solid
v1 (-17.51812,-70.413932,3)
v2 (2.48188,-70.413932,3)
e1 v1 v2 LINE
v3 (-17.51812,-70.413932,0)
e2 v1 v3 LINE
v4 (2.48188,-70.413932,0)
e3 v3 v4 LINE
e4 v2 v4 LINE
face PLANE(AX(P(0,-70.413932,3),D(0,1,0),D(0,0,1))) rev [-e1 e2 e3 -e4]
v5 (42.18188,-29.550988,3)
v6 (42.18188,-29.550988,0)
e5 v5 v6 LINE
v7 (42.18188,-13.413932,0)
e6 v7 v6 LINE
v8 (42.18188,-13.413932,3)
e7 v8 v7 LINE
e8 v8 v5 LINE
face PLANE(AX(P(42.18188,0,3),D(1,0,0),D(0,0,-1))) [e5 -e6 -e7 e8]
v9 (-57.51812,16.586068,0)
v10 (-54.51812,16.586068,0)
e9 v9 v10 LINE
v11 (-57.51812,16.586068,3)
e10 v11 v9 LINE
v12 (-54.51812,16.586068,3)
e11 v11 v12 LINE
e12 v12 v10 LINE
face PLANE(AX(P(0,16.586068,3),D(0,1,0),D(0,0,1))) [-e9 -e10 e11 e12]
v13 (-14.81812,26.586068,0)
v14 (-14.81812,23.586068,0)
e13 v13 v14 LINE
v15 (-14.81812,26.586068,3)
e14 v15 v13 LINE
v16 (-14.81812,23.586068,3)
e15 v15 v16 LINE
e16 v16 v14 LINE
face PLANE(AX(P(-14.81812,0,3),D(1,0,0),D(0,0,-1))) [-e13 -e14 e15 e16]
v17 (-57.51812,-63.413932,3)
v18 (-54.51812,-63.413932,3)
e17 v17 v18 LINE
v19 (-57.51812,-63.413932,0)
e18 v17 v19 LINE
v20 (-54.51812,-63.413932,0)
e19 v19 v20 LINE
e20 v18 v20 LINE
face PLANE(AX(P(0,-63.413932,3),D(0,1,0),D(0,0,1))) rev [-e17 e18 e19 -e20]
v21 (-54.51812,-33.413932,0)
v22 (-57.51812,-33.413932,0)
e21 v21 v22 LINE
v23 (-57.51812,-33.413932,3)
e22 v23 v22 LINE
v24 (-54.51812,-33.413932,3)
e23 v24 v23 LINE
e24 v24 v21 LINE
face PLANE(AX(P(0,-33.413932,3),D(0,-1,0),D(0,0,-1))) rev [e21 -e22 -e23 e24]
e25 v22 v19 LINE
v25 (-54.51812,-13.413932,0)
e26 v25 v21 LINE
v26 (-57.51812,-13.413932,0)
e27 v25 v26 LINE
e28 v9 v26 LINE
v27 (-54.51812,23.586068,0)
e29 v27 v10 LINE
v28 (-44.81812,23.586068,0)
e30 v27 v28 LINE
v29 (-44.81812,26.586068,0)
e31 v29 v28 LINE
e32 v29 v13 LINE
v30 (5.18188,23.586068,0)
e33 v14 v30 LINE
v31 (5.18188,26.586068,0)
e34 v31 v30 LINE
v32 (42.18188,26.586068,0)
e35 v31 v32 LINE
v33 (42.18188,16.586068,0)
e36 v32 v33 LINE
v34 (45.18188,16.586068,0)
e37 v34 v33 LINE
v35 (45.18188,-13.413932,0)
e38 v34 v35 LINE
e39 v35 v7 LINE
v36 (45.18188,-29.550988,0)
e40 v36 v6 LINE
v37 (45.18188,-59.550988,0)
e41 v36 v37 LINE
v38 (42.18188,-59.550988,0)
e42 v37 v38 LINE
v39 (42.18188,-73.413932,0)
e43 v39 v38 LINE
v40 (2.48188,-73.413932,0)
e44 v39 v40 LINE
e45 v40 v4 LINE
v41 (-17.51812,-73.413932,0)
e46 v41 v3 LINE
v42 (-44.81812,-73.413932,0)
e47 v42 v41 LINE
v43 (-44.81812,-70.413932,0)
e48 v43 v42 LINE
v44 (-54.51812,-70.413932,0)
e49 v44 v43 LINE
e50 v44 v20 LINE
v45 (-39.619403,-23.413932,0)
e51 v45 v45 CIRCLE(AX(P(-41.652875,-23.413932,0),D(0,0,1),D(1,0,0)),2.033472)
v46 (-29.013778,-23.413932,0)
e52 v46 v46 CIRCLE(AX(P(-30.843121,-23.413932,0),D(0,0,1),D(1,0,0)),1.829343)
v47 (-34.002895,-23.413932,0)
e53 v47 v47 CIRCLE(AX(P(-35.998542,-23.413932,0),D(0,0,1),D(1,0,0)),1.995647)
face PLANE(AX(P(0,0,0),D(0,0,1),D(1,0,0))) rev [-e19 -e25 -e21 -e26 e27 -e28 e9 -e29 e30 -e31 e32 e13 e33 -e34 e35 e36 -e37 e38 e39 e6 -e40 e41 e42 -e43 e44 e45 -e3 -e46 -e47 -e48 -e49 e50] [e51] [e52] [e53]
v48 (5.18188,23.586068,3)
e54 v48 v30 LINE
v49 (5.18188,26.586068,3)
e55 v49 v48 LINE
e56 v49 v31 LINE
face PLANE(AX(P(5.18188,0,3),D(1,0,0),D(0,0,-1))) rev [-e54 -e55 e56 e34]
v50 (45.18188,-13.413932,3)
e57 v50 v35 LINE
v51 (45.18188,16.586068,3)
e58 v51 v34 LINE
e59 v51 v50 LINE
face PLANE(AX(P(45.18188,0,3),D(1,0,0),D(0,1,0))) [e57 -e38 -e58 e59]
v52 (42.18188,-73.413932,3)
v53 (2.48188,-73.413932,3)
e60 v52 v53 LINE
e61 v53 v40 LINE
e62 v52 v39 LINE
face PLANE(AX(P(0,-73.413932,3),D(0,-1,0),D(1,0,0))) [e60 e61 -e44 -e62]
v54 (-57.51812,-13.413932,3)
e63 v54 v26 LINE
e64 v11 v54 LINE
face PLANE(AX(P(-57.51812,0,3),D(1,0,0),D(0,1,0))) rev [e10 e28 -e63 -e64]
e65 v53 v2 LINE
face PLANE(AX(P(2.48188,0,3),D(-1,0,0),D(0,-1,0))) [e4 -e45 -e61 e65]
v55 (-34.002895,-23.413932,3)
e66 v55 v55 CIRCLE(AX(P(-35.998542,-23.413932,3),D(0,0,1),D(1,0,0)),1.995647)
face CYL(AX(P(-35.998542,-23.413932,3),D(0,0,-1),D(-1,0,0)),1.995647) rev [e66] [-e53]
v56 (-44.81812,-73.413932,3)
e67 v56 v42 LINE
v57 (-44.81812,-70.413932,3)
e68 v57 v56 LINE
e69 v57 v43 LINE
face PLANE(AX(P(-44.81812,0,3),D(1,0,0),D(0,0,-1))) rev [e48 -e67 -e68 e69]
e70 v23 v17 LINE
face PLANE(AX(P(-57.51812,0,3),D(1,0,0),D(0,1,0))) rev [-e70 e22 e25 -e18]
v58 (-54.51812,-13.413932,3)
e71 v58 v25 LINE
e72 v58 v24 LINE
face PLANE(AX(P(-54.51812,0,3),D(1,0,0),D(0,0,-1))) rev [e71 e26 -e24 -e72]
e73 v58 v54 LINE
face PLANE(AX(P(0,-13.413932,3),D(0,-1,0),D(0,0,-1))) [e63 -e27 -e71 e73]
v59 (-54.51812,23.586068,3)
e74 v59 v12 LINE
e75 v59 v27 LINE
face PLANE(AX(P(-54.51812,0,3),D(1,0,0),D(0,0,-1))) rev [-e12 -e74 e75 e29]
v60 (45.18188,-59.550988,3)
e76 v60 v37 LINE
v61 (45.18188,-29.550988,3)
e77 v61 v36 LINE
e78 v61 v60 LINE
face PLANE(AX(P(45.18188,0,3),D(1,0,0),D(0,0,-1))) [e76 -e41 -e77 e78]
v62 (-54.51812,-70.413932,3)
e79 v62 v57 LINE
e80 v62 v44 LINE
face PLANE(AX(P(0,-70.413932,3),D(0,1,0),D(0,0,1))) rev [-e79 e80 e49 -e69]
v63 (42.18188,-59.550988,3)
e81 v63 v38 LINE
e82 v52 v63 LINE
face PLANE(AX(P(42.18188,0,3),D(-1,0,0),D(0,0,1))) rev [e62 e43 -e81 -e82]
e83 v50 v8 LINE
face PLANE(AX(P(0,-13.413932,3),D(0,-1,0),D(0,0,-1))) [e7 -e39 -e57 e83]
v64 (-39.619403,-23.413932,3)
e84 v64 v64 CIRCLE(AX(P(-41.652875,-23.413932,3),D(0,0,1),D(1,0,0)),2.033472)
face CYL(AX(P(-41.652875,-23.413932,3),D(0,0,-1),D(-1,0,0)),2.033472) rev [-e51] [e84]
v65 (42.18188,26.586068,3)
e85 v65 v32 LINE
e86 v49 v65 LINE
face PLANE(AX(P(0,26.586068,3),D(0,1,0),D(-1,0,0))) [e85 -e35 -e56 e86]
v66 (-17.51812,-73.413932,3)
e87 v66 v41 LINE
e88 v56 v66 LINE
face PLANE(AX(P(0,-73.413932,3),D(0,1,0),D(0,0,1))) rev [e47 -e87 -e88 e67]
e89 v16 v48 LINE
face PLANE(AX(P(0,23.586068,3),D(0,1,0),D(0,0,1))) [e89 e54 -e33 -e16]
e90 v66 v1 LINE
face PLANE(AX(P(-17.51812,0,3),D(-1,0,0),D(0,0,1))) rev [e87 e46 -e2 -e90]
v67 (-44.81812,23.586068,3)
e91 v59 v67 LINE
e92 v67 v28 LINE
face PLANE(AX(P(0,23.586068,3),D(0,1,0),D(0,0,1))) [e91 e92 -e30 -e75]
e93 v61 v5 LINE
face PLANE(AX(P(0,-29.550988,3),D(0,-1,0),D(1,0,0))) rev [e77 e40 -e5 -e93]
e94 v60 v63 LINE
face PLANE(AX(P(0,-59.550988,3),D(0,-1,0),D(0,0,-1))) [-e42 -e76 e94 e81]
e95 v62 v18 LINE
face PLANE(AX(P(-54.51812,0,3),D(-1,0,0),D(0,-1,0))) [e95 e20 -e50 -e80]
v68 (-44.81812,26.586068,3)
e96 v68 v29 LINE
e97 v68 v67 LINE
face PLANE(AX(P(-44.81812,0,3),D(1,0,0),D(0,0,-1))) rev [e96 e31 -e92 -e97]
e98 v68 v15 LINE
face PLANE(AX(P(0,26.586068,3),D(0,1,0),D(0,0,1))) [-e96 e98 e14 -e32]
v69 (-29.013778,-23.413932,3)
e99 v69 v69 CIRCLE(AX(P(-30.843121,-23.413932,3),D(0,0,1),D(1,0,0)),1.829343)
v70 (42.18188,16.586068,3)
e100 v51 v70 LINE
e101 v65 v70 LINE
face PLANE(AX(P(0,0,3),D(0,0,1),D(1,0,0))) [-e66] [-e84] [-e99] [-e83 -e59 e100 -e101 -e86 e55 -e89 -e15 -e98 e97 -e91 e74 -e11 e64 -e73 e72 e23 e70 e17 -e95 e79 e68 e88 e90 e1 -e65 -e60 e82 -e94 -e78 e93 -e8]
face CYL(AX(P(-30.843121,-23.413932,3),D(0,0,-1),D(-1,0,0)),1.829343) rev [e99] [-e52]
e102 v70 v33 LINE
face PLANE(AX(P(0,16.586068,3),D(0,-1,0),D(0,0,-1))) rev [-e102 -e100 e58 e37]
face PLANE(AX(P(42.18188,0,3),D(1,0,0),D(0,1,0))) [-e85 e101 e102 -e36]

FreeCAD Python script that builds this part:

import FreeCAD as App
import Part
import Sketcher
from FreeCAD import Vector
Q = App.Units.Quantity


def add_polygon(sketch, points):
    """Adds a closed chain of lines whose ends are joined by coincident constraints."""
    first, n = sketch.GeometryCount, len(points)
    for a, b in zip(points, points[1:] + points[:1]):
        sketch.addGeometry(Part.LineSegment(App.Vector(*a, 0), App.Vector(*b, 0)), False)
    for i in range(n):
        sketch.addConstraint(Sketcher.Constraint("Coincident", first + i, 2, first + (i + 1) % n, 1))

doc = App.newDocument("Part")
body = doc.addObject("PartDesign::Body", "Body")

# Sketch on XY plane
sketch1 = body.newObject("Sketcher::SketchObject", "Sketch")
sketch1.AttachmentSupport = (doc.getObject("XY_Plane"), [""])
sketch1.MapMode = "FlatFace"
add_polygon(sketch1, [(-54.5, -33.4), (-57.5, -33.4), (-57.5, -63.4), (-54.5, -63.4), (-54.5, -70.4), (-44.8, -70.4), (-44.8, -73.4), (-17.5, -73.4), (-17.5, -70.4), (2.5, -70.4), (2.5, -73.4), (42.2, -73.4), (42.2, -59.6), (45.2, -59.6), (45.2, -29.6), (42.2, -29.6), (42.2, -13.4), (45.2, -13.4), (45.2, 16.6), (42.2, 16.6), (42.2, 26.6), (5.2, 26.6), (5.2, 23.6), (-14.8, 23.6), (-14.8, 26.6), (-44.8, 26.6), (-44.8, 23.6), (-54.5, 23.6), (-54.5, 16.6), (-57.5, 16.6), (-57.5, -13.4), (-54.5, -13.4)])  # lines 0-31
sketch1.addGeometry(Part.Circle(Vector(-41.7, -23.4, 0), Vector(0, 0, 1), 2), False)  # 32
sketch1.addGeometry(Part.Circle(Vector(-36, -23.4, 0), Vector(0, 0, 1), 2), False)  # 33
sketch1.addGeometry(Part.Circle(Vector(-30.8, -23.4, 0), Vector(0, 0, 1), 1.8), False)  # 34
sketch1.addConstraint([
    Sketcher.Constraint("Horizontal", 0),
    Sketcher.Constraint("Vertical", 1),
    Sketcher.Constraint("Horizontal", 2),
    Sketcher.Constraint("Vertical", 3),
    Sketcher.Constraint("Horizontal", 4),
    Sketcher.Constraint("Vertical", 5),
    Sketcher.Constraint("Horizontal", 6),
    Sketcher.Constraint("Vertical", 7),
    Sketcher.Constraint("Horizontal", 8),
    Sketcher.Constraint("Vertical", 9),
    Sketcher.Constraint("Horizontal", 10),
    Sketcher.Constraint("Vertical", 11),
    Sketcher.Constraint("Horizontal", 12),
    Sketcher.Constraint("Vertical", 13),
    Sketcher.Constraint("Horizontal", 14),
    Sketcher.Constraint("Vertical", 15),
    Sketcher.Constraint("Horizontal", 16),
    Sketcher.Constraint("Vertical", 17),
    Sketcher.Constraint("Horizontal", 18),
    Sketcher.Constraint("Vertical", 19),
    Sketcher.Constraint("Horizontal", 20),
    Sketcher.Constraint("Vertical", 21),
    Sketcher.Constraint("Horizontal", 22),
    Sketcher.Constraint("Vertical", 23),
    Sketcher.Constraint("Horizontal", 24),
    Sketcher.Constraint("Vertical", 25),
    Sketcher.Constraint("Horizontal", 26),
    Sketcher.Constraint("Vertical", 27),
    Sketcher.Constraint("Horizontal", 28),
    Sketcher.Constraint("Vertical", 29),
    Sketcher.Constraint("Horizontal", 30),
    Sketcher.Constraint("Vertical", 31),
    Sketcher.Constraint("Horizontal", 32, 3, 33, 3),
    Sketcher.Constraint("Horizontal", 33, 3, 34, 3),
    Sketcher.Constraint("Horizontal", 4, 2, 7, 2),
    Sketcher.Constraint("Horizontal", 6, 2, 9, 2),
    Sketcher.Constraint("Horizontal", 20, 2, 23, 2),
    Sketcher.Constraint("Horizontal", 22, 2, 25, 2),
    Sketcher.Constraint("Horizontal", 18, 2, 27, 2),
    Sketcher.Constraint("Horizontal", 16, 2, 29, 2),
    Sketcher.Constraint("Vertical", 11, 2, 14, 2),
    Sketcher.Constraint("Vertical", 13, 2, 16, 2),
    Sketcher.Constraint("Vertical", 15, 2, 18, 2),
    Sketcher.Constraint("Vertical", 5, 2, 24, 2),
    Sketcher.Constraint("Vertical", 3, 2, 26, 2),
    Sketcher.Constraint("Vertical", 1, 2, 28, 2),
    Sketcher.Constraint("Vertical", 27, 2, 30, 2),
    Sketcher.Constraint("Equal", 2, 12),
    Sketcher.Constraint("Equal", 8, 22),
    Sketcher.Constraint("Equal", 24, 1),
    Sketcher.Constraint("Equal", 30, 5),
    Sketcher.Constraint("Equal", 1, 13),
    Sketcher.Constraint("Equal", 13, 17),
    Sketcher.Constraint("Equal", 9, 21),
    Sketcher.Constraint("Equal", 3, 27),
    Sketcher.Constraint("Equal", 22, 31),
    Sketcher.Constraint("DistanceX", 0, 2, 0, 1, Q("3 mm")),
    Sketcher.Constraint("DistanceX", 8, 1, 8, 2, Q("20 mm")),
    Sketcher.Constraint("DistanceX", 20, 2, 20, 1, Q("37 mm")),
    Sketcher.Constraint("DistanceX", 24, 2, 24, 1, Q("30 mm")),
    Sketcher.Constraint("DistanceY", 3, 2, 3, 1, Q("7 mm")),
    Sketcher.Constraint("DistanceX", 4, 1, 4, 2, Q("9.7 mm")),
    Sketcher.Constraint("DistanceX", 6, 1, 6, 2, Q("27.3 mm")),
    Sketcher.Constraint("DistanceY", 0, 2, 32, 3, Q("10 mm")),
    Sketcher.Constraint("Diameter", 32, Q("4.066945 mm")),
    Sketcher.Constraint("Diameter", 33, Q("3.991294 mm")),
    Sketcher.Constraint("Diameter", 34, Q("3.658686 mm")),
    Sketcher.Constraint("DistanceX", 0, 2, 34, 3, Q("26.674999 mm")),
    Sketcher.Constraint("DistanceY", 11, 1, 11, 2, Q("13.862944 mm")),
    Sketcher.Constraint("DistanceX", 34, 3, -1, 1, Q("30.843121 mm")),
    Sketcher.Constraint("DistanceY", 11, 2, -1, 1, Q("59.550988 mm")),
    Sketcher.Constraint("DistanceX", 33, 3, 34, 3, Q("5.155421 mm")),
    Sketcher.Constraint("DistanceX", 32, 3, -1, 1, Q("41.652875 mm")),
])
pad1 = body.newObject("PartDesign::Pad", "Pad")
pad1.Profile = sketch1
pad1.Length = 3

doc.recompute()
